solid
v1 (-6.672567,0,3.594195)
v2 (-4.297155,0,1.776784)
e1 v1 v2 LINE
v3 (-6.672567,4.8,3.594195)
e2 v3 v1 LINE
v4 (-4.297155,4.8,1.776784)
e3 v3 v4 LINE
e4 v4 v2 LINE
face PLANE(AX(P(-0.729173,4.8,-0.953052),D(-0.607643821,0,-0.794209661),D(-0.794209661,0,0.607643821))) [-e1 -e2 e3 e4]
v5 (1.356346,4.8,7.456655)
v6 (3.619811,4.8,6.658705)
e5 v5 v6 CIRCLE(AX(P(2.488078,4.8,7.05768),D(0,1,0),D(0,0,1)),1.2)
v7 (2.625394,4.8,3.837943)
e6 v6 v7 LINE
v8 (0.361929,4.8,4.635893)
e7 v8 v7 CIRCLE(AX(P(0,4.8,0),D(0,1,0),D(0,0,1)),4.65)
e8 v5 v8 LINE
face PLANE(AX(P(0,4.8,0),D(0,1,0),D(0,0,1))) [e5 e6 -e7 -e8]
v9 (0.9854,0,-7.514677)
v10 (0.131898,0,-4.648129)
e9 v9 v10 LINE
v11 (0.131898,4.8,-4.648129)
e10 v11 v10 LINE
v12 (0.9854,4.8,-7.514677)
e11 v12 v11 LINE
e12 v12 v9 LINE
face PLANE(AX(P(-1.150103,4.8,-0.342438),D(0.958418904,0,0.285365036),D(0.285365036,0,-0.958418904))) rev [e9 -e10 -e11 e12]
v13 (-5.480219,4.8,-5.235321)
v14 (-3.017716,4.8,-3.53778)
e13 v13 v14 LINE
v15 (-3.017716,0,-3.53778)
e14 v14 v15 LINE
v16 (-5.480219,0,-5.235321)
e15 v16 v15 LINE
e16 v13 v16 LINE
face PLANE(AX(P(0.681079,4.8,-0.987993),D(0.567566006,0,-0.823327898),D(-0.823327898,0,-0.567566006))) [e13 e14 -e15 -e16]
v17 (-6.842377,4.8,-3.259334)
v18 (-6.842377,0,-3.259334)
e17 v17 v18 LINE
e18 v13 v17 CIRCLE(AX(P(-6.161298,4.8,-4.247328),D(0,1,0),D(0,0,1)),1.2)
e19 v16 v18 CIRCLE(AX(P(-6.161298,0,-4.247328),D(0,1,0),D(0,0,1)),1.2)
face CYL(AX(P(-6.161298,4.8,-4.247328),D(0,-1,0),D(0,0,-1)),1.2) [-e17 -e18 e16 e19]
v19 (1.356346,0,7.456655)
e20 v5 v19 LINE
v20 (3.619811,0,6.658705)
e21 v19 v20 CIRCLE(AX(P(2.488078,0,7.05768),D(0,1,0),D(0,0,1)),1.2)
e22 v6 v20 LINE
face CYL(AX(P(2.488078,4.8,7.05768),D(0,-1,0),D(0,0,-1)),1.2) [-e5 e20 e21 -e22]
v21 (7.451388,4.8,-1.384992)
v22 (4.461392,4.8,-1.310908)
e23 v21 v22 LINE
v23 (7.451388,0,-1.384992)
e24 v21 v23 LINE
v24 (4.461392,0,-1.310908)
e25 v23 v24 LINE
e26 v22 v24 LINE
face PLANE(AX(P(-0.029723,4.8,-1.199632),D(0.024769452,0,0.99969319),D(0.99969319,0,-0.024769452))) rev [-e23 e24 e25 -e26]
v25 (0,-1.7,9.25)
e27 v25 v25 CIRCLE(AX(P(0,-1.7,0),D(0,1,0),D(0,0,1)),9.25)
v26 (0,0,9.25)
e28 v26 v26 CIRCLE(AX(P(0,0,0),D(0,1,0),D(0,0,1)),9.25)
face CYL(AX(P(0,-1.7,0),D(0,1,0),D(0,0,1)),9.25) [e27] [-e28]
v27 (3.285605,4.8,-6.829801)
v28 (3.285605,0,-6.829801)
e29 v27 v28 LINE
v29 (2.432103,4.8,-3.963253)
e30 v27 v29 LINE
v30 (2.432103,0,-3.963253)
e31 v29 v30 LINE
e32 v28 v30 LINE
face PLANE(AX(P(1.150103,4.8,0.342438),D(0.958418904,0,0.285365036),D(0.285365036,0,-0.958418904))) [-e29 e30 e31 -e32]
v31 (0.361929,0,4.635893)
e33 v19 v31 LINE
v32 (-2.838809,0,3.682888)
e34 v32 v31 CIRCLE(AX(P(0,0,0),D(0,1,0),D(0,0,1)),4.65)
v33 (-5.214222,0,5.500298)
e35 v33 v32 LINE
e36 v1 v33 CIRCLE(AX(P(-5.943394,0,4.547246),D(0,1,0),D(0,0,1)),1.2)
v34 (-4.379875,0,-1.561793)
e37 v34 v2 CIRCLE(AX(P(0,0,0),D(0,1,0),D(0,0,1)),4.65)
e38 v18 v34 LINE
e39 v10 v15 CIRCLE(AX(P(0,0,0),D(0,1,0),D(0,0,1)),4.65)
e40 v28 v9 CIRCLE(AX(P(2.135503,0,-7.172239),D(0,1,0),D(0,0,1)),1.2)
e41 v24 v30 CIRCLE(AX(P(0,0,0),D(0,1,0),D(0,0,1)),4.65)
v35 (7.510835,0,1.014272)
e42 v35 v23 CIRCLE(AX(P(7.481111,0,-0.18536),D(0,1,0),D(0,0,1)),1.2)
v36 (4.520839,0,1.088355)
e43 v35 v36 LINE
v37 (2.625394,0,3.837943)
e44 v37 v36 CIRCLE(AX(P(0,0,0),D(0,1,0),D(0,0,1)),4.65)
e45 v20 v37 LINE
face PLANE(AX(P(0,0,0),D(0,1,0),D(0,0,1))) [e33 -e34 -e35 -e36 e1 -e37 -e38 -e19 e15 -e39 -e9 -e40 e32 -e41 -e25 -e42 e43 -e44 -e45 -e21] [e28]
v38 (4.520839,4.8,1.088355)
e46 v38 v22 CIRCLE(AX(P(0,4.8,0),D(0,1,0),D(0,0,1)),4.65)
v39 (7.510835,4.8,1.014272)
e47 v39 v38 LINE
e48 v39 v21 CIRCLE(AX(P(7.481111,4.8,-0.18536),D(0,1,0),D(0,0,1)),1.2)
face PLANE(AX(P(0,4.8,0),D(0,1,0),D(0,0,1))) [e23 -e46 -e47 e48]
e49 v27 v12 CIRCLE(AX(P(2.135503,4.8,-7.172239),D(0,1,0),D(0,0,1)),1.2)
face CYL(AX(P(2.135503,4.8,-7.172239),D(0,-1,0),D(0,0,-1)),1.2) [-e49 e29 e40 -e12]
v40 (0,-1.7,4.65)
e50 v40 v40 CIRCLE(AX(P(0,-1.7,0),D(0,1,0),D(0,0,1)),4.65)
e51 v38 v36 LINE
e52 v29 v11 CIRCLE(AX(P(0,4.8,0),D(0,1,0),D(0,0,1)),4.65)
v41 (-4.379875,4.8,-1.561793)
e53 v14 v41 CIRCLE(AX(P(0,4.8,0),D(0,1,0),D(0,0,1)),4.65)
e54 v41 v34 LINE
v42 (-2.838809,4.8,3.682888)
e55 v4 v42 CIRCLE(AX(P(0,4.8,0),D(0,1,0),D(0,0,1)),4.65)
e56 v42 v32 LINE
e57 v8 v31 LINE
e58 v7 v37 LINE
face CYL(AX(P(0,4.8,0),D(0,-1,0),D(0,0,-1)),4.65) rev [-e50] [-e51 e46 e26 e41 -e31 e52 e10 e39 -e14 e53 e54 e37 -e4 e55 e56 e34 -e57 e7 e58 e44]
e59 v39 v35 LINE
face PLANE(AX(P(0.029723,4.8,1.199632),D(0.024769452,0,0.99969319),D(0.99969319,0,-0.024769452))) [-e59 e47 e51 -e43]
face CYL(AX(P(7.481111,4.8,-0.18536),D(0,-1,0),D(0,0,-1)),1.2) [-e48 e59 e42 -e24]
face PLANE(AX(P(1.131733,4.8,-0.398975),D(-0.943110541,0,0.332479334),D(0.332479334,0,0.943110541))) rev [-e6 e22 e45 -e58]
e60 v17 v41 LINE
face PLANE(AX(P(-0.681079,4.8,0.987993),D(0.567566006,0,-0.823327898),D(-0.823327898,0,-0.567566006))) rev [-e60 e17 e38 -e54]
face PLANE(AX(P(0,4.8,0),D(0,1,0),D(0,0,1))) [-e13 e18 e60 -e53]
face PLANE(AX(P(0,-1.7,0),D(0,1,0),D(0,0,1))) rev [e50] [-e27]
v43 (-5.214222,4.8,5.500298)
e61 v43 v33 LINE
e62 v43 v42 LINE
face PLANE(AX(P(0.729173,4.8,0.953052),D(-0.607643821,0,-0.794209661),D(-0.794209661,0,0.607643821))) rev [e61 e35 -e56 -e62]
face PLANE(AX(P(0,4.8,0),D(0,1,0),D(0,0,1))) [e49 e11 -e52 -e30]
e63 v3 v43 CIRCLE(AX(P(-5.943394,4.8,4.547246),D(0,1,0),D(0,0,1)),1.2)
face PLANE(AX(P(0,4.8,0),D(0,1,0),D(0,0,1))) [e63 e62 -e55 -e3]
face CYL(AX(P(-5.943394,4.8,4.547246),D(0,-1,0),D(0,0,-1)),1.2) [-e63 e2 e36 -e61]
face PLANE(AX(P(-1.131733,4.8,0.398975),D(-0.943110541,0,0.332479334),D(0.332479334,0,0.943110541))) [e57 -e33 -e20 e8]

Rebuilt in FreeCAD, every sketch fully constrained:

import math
import FreeCAD as App
import Part
import Sketcher
from FreeCAD import Vector

doc = App.newDocument("Part")
params = doc.addObject("Spreadsheet::Sheet", "Params")
for row, (alias, value) in enumerate([
    ("sketch1_radius", "1.2 mm"),
    ("sketch1_radius2", "4.65 mm"),
    ("pad1_length", "4.8 mm"),
    ("sketch2_radius", "1.2 mm"),
    ("sketch2_radius2", "4.65 mm"),
    ("pad2_length", "4.8 mm"),
    ("sketch3_radius", "1.2 mm"),
    ("sketch3_radius2", "4.65 mm"),
    ("pad3_length", "4.8 mm"),
    ("sketch4_radius", "1.2 mm"),
    ("sketch4_radius2", "4.65 mm"),
    ("pad4_length", "4.8 mm"),
    ("sketch5_radius", "1.2 mm"),
    ("sketch5_radius2", "4.65 mm"),
    ("pad5_length", "4.8 mm"),
    ("sketch6_diameter", "18.5 mm"),
    ("sketch6_diameter2", "9.3 mm"),
    ("pad6_length", "1.7 mm"),
], start=1):
    params.set(f"A{row}", alias)
    params.set(f"B{row}", "=" + value)
    params.setAlias(f"B{row}", alias)

body = doc.addObject("PartDesign::Body", "Body")

sketch1 = body.newObject("Sketcher::SketchObject", "Sketch")
sketch1.AttachmentSupport = (doc.getObject("XZ_Plane"), [""])
sketch1.MapMode = "FlatFace"
sketch1.addGeometry(Part.ArcOfCircle(Part.Circle(Vector(-6.2, -4.2, 0), Vector(0, 0, 1), 1.2), math.radians(125), math.radians(305)), False)
sketch1.addGeometry(Part.LineSegment(Vector(-6.8, -3.3, 0), Vector(-4.4, -1.6, 0)), False)
sketch1.addGeometry(Part.ArcOfCircle(Part.Circle(Vector(0, 0, 0), Vector(0, 0, 1), 4.6), math.radians(-160), math.radians(-130)), False)
sketch1.addGeometry(Part.LineSegment(Vector(-3, -3.5, 0), Vector(-5.5, -5.2, 0)), False)
sketch1.addConstraint(Sketcher.Constraint("Tangent", 0, 1, 1, 1))
sketch1.addConstraint(Sketcher.Constraint("Coincident", 1, 2, 2, 1))
sketch1.addConstraint(Sketcher.Constraint("Coincident", 2, 2, 3, 1))
sketch1.addConstraint(Sketcher.Constraint("Tangent", 3, 2, 0, 2))
sketch1.addConstraint(Sketcher.Constraint("Coincident", 2, 3, -1, 1))
sketch1.addConstraint(Sketcher.Constraint("Parallel", 1, 3))
sketch1.addConstraint(Sketcher.Constraint("Equal", 1, 3))
sketch1.addConstraint(Sketcher.Constraint("Radius", 0, 1.2))
sketch1.addConstraint(Sketcher.Constraint("Radius", 2, 4.65))
sketch1.addConstraint(Sketcher.Constraint("DistanceY", 2, 2, -1, 1, 3.53778))
sketch1.addConstraint(Sketcher.Constraint("DistanceX", 3, 2, -1, 1, 5.480219))
sketch1.setExpression("Constraints[7]", "Params.sketch1_radius")
sketch1.setExpression("Constraints[8]", "Params.sketch1_radius2")
pad1 = body.newObject("PartDesign::Pad", "Pad")
pad1.Profile = sketch1
pad1.setExpression("Length", "Params.pad1_length")
pad1.Reversed = True
body2 = doc.addObject("PartDesign::Body", "Body001")

sketch2 = body2.newObject("Sketcher::SketchObject", "Sketch001")
sketch2.AttachmentSupport = (doc.getObject("XZ_Plane001"), [""])
sketch2.MapMode = "FlatFace"
sketch2.addGeometry(Part.ArcOfCircle(Part.Circle(Vector(0, 0, 0), Vector(0, 0, 1), 4.7), math.radians(128), math.radians(158)), False)
sketch2.addGeometry(Part.LineSegment(Vector(-4.3, 1.8, 0), Vector(-6.7, 3.6, 0)), False)
sketch2.addGeometry(Part.ArcOfCircle(Part.Circle(Vector(-5.9, 4.5, 0), Vector(0, 0, 1), 1.2), math.radians(53), math.radians(233)), False)
sketch2.addGeometry(Part.LineSegment(Vector(-5.2, 5.5, 0), Vector(-2.8, 3.7, 0)), False)
sketch2.addConstraint(Sketcher.Constraint("Coincident", 0, 2, 1, 1))
sketch2.addConstraint(Sketcher.Constraint("Tangent", 1, 2, 2, 2))
sketch2.addConstraint(Sketcher.Constraint("Tangent", 2, 1, 3, 1))
sketch2.addConstraint(Sketcher.Constraint("Coincident", 3, 2, 0, 1))
sketch2.addConstraint(Sketcher.Constraint("Coincident", 0, 3, -1, 1))
sketch2.addConstraint(Sketcher.Constraint("Parallel", 1, 3))
sketch2.addConstraint(Sketcher.Constraint("Equal", 1, 3))
sketch2.addConstraint(Sketcher.Constraint("Radius", 2, 1.2))
sketch2.addConstraint(Sketcher.Constraint("Radius", 0, 4.65))
sketch2.addConstraint(Sketcher.Constraint("DistanceX", 2, 1, -1, 1, 5.214222))
sketch2.addConstraint(Sketcher.Constraint("DistanceX", 3, 2, -1, 1, 2.838809))
sketch2.setExpression("Constraints[7]", "Params.sketch2_radius")
sketch2.setExpression("Constraints[8]", "Params.sketch2_radius2")
pad2 = body2.newObject("PartDesign::Pad", "Pad001")
pad2.Profile = sketch2
pad2.setExpression("Length", "Params.pad2_length")
pad2.Reversed = True
body3 = doc.addObject("PartDesign::Body", "Body002")

sketch3 = body3.newObject("Sketcher::SketchObject", "Sketch002")
sketch3.AttachmentSupport = (doc.getObject("XZ_Plane002"), [""])
sketch3.MapMode = "FlatFace"
sketch3.addGeometry(Part.LineSegment(Vector(1, -7.5, 0), Vector(0.1, -4.6, 0)), False)
sketch3.addGeometry(Part.ArcOfCircle(Part.Circle(Vector(0, 0, 0), Vector(0, 0, 1), 4.7), math.radians(-88), math.radians(-58)), False)
sketch3.addGeometry(Part.LineSegment(Vector(2.4, -4, 0), Vector(3.3, -6.8, 0)), False)
sketch3.addGeometry(Part.ArcOfCircle(Part.Circle(Vector(2.1, -7.2, 0), Vector(0, 0, 1), 1.2), math.radians(-163), math.radians(17)), False)
sketch3.addConstraint(Sketcher.Constraint("Coincident", 0, 2, 1, 1))
sketch3.addConstraint(Sketcher.Constraint("Coincident", 1, 2, 2, 1))
sketch3.addConstraint(Sketcher.Constraint("Tangent", 2, 2, 3, 2))
sketch3.addConstraint(Sketcher.Constraint("Tangent", 3, 1, 0, 1))
sketch3.addConstraint(Sketcher.Constraint("Coincident", 1, 3, -1, 1))
sketch3.addConstraint(Sketcher.Constraint("Parallel", 0, 2))
sketch3.addConstraint(Sketcher.Constraint("Equal", 0, 2))
sketch3.addConstraint(Sketcher.Constraint("Radius", 3, 1.2))
sketch3.addConstraint(Sketcher.Constraint("Radius", 1, 4.65))
sketch3.addConstraint(Sketcher.Constraint("DistanceY", 2, 2, -1, 1, 6.829801))
sketch3.addConstraint(Sketcher.Constraint("DistanceX", -1, 1, 3, 1, 0.9854))
sketch3.setExpression("Constraints[7]", "Params.sketch3_radius")
sketch3.setExpression("Constraints[8]", "Params.sketch3_radius2")
pad3 = body3.newObject("PartDesign::Pad", "Pad002")
pad3.Profile = sketch3
pad3.setExpression("Length", "Params.pad3_length")
pad3.Reversed = True
body4 = doc.addObject("PartDesign::Body", "Body003")

sketch4 = body4.newObject("Sketcher::SketchObject", "Sketch003")
sketch4.AttachmentSupport = (doc.getObject("XZ_Plane003"), [""])
sketch4.MapMode = "FlatFace"
sketch4.addGeometry(Part.ArcOfCircle(Part.Circle(Vector(0, 0, 0), Vector(0, 0, 1), 4.7), math.radians(56), math.radians(86)), False)
sketch4.addGeometry(Part.LineSegment(Vector(0.4, 4.6, 0), Vector(1.4, 7.5, 0)), False)
sketch4.addGeometry(Part.ArcOfCircle(Part.Circle(Vector(2.5, 7.1, 0), Vector(0, 0, 1), 1.2), math.radians(-19), math.radians(161)), False)
sketch4.addGeometry(Part.LineSegment(Vector(3.6, 6.7, 0), Vector(2.6, 3.8, 0)), False)
sketch4.addConstraint(Sketcher.Constraint("Coincident", 0, 2, 1, 1))
sketch4.addConstraint(Sketcher.Constraint("Tangent", 1, 2, 2, 2))
sketch4.addConstraint(Sketcher.Constraint("Tangent", 2, 1, 3, 1))
sketch4.addConstraint(Sketcher.Constraint("Coincident", 3, 2, 0, 1))
sketch4.addConstraint(Sketcher.Constraint("Coincident", 0, 3, -1, 1))
sketch4.addConstraint(Sketcher.Constraint("Parallel", 1, 3))
sketch4.addConstraint(Sketcher.Constraint("Equal", 1, 3))
sketch4.addConstraint(Sketcher.Constraint("Radius", 2, 1.2))
sketch4.addConstraint(Sketcher.Constraint("Radius", 0, 4.65))
sketch4.addConstraint(Sketcher.Constraint("DistanceX", -1, 1, 2, 3, 2.488078))
sketch4.addConstraint(Sketcher.Constraint("DistanceY", -1, 1, 2, 3, 7.05768))
sketch4.setExpression("Constraints[7]", "Params.sketch4_radius")
sketch4.setExpression("Constraints[8]", "Params.sketch4_radius2")
pad4 = body4.newObject("PartDesign::Pad", "Pad003")
pad4.Profile = sketch4
pad4.setExpression("Length", "Params.pad4_length")
pad4.Reversed = True
body5 = doc.addObject("PartDesign::Body", "Body004")

sketch5 = body5.newObject("Sketcher::SketchObject", "Sketch004")
sketch5.AttachmentSupport = (doc.getObject("XZ_Plane004"), [""])
sketch5.MapMode = "FlatFace"
sketch5.addGeometry(Part.LineSegment(Vector(7.5, -1.4, 0), Vector(4.5, -1.3, 0)), False)
sketch5.addGeometry(Part.ArcOfCircle(Part.Circle(Vector(0, 0, 0), Vector(0, 0, 1), 4.6), math.radians(-16), math.radians(14)), False)
sketch5.addGeometry(Part.LineSegment(Vector(4.5, 1.1, 0), Vector(7.5, 1, 0)), False)
sketch5.addGeometry(Part.ArcOfCircle(Part.Circle(Vector(7.5, -0.2, 0), Vector(0, 0, 1), 1.2), math.radians(-91), math.radians(89)), False)
sketch5.addConstraint(Sketcher.Constraint("Coincident", 0, 2, 1, 1))
sketch5.addConstraint(Sketcher.Constraint("Coincident", 1, 2, 2, 1))
sketch5.addConstraint(Sketcher.Constraint("Tangent", 2, 2, 3, 2))
sketch5.addConstraint(Sketcher.Constraint("Tangent", 3, 1, 0, 1))
sketch5.addConstraint(Sketcher.Constraint("Coincident", 1, 3, -1, 1))
sketch5.addConstraint(Sketcher.Constraint("Parallel", 0, 2))
sketch5.addConstraint(Sketcher.Constraint("Equal", 0, 2))
sketch5.addConstraint(Sketcher.Constraint("Radius", 3, 1.2))
sketch5.addConstraint(Sketcher.Constraint("Radius", 1, 4.65))
sketch5.addConstraint(Sketcher.Constraint("DistanceX", -1, 1, 3, 3, 7.481111))
sketch5.addConstraint(Sketcher.Constraint("DistanceY", 3, 3, -1, 1, 0.18536))
sketch5.setExpression("Constraints[7]", "Params.sketch5_radius")
sketch5.setExpression("Constraints[8]", "Params.sketch5_radius2")
pad5 = body5.newObject("PartDesign::Pad", "Pad004")
pad5.Profile = sketch5
pad5.setExpression("Length", "Params.pad5_length")
pad5.Reversed = True
body.AllowCompound = True
doc.recompute()

boolean = body.newObject("PartDesign::Boolean", "Boolean")
boolean.Type = "Fuse"
boolean.addObjects([body2])
doc.recompute()

boolean2 = body.newObject("PartDesign::Boolean", "Boolean001")
boolean2.Type = "Fuse"
boolean2.addObjects([body3])
doc.recompute()

boolean3 = body.newObject("PartDesign::Boolean", "Boolean002")
boolean3.Type = "Fuse"
boolean3.addObjects([body4])
doc.recompute()

boolean4 = body.newObject("PartDesign::Boolean", "Boolean003")
boolean4.Type = "Fuse"
boolean4.addObjects([body5])

sketch6 = body.newObject("Sketcher::SketchObject", "Sketch005")
sketch6.AttachmentSupport = (doc.getObject("XZ_Plane"), [""])
sketch6.MapMode = "FlatFace"
sketch6.AttachmentOffset = App.Placement(Vector(0, 0, 1.7), App.Rotation())
sketch6.addGeometry(Part.Circle(Vector(0, 0, 0), Vector(0, 0, 1), 9.2), False)
sketch6.addGeometry(Part.Circle(Vector(0, 0, 0), Vector(0, 0, 1), 4.7), False)
sketch6.addConstraint(Sketcher.Constraint("Coincident", 0, 3, -1, 1))
sketch6.addConstraint(Sketcher.Constraint("Coincident", 1, 3, -1, 1))
sketch6.addConstraint(Sketcher.Constraint("Diameter", 0, 18.5))
sketch6.addConstraint(Sketcher.Constraint("Diameter", 1, 9.3))
sketch6.setExpression("Constraints[2]", "Params.sketch6_diameter")
sketch6.setExpression("Constraints[3]", "Params.sketch6_diameter2")
pad6 = body.newObject("PartDesign::Pad", "Pad005")
pad6.Profile = sketch6
pad6.setExpression("Length", "Params.pad6_length")
pad6.Reversed = True

doc.recompute()
